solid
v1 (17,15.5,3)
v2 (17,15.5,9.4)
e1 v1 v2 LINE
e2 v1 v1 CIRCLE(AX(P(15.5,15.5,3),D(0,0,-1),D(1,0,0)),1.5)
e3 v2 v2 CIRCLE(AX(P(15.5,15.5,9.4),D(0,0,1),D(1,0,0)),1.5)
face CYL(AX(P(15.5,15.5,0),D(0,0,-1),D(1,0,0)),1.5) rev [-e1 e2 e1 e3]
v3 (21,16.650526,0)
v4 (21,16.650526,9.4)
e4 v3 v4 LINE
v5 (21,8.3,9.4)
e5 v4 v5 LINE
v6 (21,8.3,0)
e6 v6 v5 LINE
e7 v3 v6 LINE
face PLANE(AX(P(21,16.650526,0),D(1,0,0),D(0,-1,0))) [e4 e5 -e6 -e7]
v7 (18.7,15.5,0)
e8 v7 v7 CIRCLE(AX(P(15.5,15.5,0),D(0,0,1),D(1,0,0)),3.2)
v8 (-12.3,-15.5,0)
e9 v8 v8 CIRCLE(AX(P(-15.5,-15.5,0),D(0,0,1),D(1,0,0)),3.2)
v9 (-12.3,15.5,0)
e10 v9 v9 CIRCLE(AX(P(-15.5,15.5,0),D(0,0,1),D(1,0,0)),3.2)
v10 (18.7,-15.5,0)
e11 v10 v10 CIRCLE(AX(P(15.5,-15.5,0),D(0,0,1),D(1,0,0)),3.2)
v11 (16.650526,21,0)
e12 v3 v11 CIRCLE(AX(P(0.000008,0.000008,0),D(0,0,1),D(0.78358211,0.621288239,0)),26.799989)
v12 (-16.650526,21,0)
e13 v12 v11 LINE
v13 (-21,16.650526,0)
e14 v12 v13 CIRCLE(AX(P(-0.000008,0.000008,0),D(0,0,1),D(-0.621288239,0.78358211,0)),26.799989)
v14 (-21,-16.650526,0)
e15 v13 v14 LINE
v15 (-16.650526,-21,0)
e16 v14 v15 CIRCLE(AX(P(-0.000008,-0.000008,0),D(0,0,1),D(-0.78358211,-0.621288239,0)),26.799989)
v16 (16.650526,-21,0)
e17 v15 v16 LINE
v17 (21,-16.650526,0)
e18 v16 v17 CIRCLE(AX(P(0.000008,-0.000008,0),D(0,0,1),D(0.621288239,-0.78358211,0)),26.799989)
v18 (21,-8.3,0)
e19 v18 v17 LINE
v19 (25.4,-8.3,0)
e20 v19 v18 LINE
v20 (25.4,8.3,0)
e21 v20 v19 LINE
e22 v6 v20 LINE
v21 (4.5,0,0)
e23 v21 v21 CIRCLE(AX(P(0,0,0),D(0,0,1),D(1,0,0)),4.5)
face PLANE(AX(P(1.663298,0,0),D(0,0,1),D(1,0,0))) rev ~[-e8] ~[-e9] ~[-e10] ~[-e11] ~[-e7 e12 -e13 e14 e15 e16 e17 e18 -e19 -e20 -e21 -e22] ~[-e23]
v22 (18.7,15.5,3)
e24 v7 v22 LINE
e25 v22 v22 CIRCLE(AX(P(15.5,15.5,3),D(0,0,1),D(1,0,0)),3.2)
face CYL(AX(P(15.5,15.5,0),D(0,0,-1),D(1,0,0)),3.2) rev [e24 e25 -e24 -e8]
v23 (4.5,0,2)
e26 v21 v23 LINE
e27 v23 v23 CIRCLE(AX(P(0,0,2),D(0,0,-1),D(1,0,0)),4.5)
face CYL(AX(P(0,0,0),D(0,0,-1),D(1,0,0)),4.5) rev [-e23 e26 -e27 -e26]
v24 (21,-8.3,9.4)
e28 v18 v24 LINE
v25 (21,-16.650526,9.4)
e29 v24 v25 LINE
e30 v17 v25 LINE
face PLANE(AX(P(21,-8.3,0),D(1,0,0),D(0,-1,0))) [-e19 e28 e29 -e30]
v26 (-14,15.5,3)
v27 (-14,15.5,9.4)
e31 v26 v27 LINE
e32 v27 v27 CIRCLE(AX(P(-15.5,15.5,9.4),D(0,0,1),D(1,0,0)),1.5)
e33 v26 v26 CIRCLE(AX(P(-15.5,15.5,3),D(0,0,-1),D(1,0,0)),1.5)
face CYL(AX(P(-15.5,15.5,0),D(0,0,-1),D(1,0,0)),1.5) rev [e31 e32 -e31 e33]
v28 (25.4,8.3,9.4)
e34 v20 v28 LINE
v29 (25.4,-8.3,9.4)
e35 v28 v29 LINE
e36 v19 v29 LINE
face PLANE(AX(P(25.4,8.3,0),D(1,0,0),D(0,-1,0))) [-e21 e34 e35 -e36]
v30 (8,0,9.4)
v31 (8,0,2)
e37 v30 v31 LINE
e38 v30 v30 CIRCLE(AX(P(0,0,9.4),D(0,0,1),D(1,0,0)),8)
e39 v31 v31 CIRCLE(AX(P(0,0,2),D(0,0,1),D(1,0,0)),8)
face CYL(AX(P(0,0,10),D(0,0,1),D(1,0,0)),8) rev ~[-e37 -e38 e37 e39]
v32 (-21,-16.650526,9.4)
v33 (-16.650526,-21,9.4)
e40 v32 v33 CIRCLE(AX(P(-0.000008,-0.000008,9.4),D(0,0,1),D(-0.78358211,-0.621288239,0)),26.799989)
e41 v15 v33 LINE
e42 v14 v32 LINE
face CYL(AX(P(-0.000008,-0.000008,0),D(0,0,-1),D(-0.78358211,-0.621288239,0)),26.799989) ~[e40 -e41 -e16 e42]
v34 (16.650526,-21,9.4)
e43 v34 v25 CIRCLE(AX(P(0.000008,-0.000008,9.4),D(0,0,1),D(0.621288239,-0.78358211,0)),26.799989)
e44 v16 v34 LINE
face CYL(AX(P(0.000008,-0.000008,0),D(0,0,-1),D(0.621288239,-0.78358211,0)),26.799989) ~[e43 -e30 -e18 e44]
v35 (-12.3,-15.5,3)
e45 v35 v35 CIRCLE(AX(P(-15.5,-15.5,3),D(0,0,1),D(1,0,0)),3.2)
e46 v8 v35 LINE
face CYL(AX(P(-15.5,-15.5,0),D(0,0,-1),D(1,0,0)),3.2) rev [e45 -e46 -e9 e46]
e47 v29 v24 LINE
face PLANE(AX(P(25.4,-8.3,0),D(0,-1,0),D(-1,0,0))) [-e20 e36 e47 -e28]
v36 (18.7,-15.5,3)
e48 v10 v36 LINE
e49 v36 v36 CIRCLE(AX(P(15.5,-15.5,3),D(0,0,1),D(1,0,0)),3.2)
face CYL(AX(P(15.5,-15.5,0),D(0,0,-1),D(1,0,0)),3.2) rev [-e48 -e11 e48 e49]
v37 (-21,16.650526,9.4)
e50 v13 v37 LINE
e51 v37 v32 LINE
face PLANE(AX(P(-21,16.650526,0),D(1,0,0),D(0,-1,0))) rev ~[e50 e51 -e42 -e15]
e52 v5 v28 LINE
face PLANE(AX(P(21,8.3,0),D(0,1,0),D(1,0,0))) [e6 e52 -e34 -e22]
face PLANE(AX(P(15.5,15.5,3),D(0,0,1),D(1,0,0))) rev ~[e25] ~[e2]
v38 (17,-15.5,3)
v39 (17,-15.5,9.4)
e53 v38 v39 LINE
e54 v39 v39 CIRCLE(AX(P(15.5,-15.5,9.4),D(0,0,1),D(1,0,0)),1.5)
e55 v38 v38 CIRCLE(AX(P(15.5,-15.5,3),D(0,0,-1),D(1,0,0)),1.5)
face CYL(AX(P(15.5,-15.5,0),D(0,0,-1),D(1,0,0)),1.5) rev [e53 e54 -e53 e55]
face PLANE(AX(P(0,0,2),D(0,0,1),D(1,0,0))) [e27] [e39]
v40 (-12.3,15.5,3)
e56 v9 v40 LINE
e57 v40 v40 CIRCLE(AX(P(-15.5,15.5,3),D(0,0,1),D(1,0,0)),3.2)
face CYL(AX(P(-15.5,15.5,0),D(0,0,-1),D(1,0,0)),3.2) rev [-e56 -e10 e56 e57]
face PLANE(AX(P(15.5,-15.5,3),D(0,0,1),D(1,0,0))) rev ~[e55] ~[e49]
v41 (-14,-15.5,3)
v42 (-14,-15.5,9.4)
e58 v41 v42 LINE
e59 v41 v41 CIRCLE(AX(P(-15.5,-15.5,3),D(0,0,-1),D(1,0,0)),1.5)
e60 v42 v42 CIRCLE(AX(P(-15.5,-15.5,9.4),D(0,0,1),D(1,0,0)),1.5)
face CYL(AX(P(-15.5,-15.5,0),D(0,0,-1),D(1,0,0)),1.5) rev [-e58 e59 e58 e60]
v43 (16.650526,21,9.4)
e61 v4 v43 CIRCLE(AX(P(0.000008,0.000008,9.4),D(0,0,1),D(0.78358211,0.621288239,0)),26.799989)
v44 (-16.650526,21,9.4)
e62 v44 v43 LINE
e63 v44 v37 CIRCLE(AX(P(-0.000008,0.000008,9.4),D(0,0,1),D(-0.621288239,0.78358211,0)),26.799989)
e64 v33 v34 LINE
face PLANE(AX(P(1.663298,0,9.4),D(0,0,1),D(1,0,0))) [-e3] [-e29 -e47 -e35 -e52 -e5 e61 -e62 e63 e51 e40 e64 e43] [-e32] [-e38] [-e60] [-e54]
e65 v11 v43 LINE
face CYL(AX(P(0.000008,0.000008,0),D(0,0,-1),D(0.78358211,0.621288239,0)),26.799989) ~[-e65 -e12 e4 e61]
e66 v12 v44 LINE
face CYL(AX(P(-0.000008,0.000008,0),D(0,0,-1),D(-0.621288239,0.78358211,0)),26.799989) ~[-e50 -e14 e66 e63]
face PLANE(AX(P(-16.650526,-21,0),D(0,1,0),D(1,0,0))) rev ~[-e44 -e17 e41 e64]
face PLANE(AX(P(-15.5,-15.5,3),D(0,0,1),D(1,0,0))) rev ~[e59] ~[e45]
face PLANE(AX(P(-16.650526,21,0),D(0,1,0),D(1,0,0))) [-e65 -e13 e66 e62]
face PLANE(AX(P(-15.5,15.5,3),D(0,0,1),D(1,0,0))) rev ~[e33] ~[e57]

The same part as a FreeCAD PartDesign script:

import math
import FreeCAD as App
import Part
import Sketcher
from FreeCAD import Vector

doc = App.newDocument("Part")
body = doc.addObject("PartDesign::Body", "Body")

# Sketch on XY plane
sketch1 = body.newObject("Sketcher::SketchObject", "Sketch")
sketch1.AttachmentSupport = (doc.getObject("XY_Plane"), [""])
sketch1.MapMode = "FlatFace"
sketch1.addGeometry(Part.ArcOfCircle(Part.Circle(Vector(-0.000008, 0.000008, 0), Vector(0, 0, 1), 26.799989), math.radians(128.41027), math.radians(141.58973)), False)
sketch1.addGeometry(Part.LineSegment(Vector(-21, 16.650526, 0), Vector(-21, -16.650526, 0)), False)
sketch1.addGeometry(Part.ArcOfCircle(Part.Circle(Vector(-0.000008, -0.000008, 0), Vector(0, 0, 1), 26.799989), math.radians(-141.58973), math.radians(-128.41027)), False)
sketch1.addGeometry(Part.LineSegment(Vector(-16.650526, -21, 0), Vector(16.650526, -21, 0)), False)
sketch1.addGeometry(Part.ArcOfCircle(Part.Circle(Vector(0.000008, -0.000008, 0), Vector(0, 0, 1), 26.799989), math.radians(-51.58973), math.radians(-38.41027)), False)
sketch1.addGeometry(Part.LineSegment(Vector(21, -16.650526, 0), Vector(21, -8.3, 0)), False)
sketch1.addGeometry(Part.LineSegment(Vector(21, -8.3, 0), Vector(25.4, -8.3, 0)), False)
sketch1.addGeometry(Part.LineSegment(Vector(25.4, -8.3, 0), Vector(25.4, 8.3, 0)), False)
sketch1.addGeometry(Part.LineSegment(Vector(25.4, 8.3, 0), Vector(21, 8.3, 0)), False)
sketch1.addGeometry(Part.LineSegment(Vector(21, 8.3, 0), Vector(21, 16.650526, 0)), False)
sketch1.addGeometry(Part.ArcOfCircle(Part.Circle(Vector(0.000008, 0.000008, 0), Vector(0, 0, 1), 26.799989), math.radians(38.41027), math.radians(51.58973)), False)
sketch1.addGeometry(Part.LineSegment(Vector(16.650526, 21, 0), Vector(-16.650526, 21, 0)), False)
sketch1.addGeometry(Part.Circle(Vector(-15.5, -15.5, 0), Vector(0, 0, 1), 1.5), False)
sketch1.addGeometry(Part.Circle(Vector(15.5, -15.5, 0), Vector(0, 0, 1), 1.5), False)
sketch1.addGeometry(Part.Circle(Vector(-15.5, 15.5, 0), Vector(0, 0, 1), 1.5), False)
sketch1.addGeometry(Part.Circle(Vector(0, 0, 0), Vector(0, 0, 1), 4.5), False)
sketch1.addGeometry(Part.Circle(Vector(15.5, 15.5, 0), Vector(0, 0, 1), 1.5), False)
sketch1.addConstraint(Sketcher.Constraint("Coincident", 0, 2, 1, 1))
sketch1.addConstraint(Sketcher.Constraint("Coincident", 1, 2, 2, 1))
sketch1.addConstraint(Sketcher.Constraint("Coincident", 2, 2, 3, 1))
sketch1.addConstraint(Sketcher.Constraint("Coincident", 3, 2, 4, 1))
sketch1.addConstraint(Sketcher.Constraint("Coincident", 4, 2, 5, 1))
sketch1.addConstraint(Sketcher.Constraint("Coincident", 5, 2, 6, 1))
sketch1.addConstraint(Sketcher.Constraint("Coincident", 6, 2, 7, 1))
sketch1.addConstraint(Sketcher.Constraint("Coincident", 7, 2, 8, 1))
sketch1.addConstraint(Sketcher.Constraint("Coincident", 8, 2, 9, 1))
sketch1.addConstraint(Sketcher.Constraint("Coincident", 9, 2, 10, 1))
sketch1.addConstraint(Sketcher.Constraint("Coincident", 10, 2, 11, 1))
sketch1.addConstraint(Sketcher.Constraint("Coincident", 11, 2, 0, 1))
sketch1.addConstraint(Sketcher.Constraint("Vertical", 1))
sketch1.addConstraint(Sketcher.Constraint("Horizontal", 3))
sketch1.addConstraint(Sketcher.Constraint("Vertical", 5))
sketch1.addConstraint(Sketcher.Constraint("Horizontal", 6))
sketch1.addConstraint(Sketcher.Constraint("Vertical", 7))
sketch1.addConstraint(Sketcher.Constraint("Horizontal", 8))
sketch1.addConstraint(Sketcher.Constraint("Vertical", 9))
sketch1.addConstraint(Sketcher.Constraint("Horizontal", 11))
sketch1.addConstraint(Sketcher.Constraint("Coincident", 15, 3, -1, 1))
sketch1.addConstraint(Sketcher.Constraint("Equal", 0, 2))
sketch1.addConstraint(Sketcher.Constraint("Equal", 2, 4))
sketch1.addConstraint(Sketcher.Constraint("Equal", 4, 10))
sketch1.addConstraint(Sketcher.Constraint("Equal", 12, 13))
sketch1.addConstraint(Sketcher.Constraint("Equal", 13, 14))
sketch1.addConstraint(Sketcher.Constraint("Equal", 14, 16))
sketch1.addConstraint(Sketcher.Constraint("Symmetric", 0, 3, 4, 3, -1, 1))
sketch1.addConstraint(Sketcher.Constraint("Symmetric", 2, 3, 10, 3, -1, 1))
sketch1.addConstraint(Sketcher.Constraint("Symmetric", 13, 3, 14, 3, -1, 1))
sketch1.addConstraint(Sketcher.Constraint("Symmetric", 12, 3, 16, 3, -1, 1))
sketch1.addConstraint(Sketcher.Constraint("Symmetric", 2, 3, 4, 3, -2))
sketch1.addConstraint(Sketcher.Constraint("Symmetric", 12, 3, 13, 3, -2))
sketch1.addConstraint(Sketcher.Constraint("Symmetric", 5, 2, 8, 2, -1))
sketch1.addConstraint(Sketcher.Constraint("Horizontal", 1, 2, 4, 2))
sketch1.addConstraint(Sketcher.Constraint("Vertical", 3, 2, 10, 2))
sketch1.addConstraint(Sketcher.Constraint("Equal", 11, 1))
sketch1.addConstraint(Sketcher.Constraint("Diameter", 12, 3.0))
sketch1.addConstraint(Sketcher.Constraint("Diameter", 15, 9.0))
sketch1.addConstraint(Sketcher.Constraint("DistanceX", 6, 1, 6, 2, 4.4))
sketch1.addConstraint(Sketcher.Constraint("DistanceY", 7, 1, 7, 2, 16.6))
sketch1.addConstraint(Sketcher.Constraint("DistanceX", 0, 2, -1, 1, 21.0))
sketch1.addConstraint(Sketcher.Constraint("DistanceY", 2, 2, -1, 1, 21.0))
sketch1.addConstraint(Sketcher.Constraint("DistanceX", 12, 3, 13, 3, 31.0))
sketch1.addConstraint(Sketcher.Constraint("DistanceY", 12, 3, 14, 3, 31.0))
sketch1.addConstraint(Sketcher.Constraint("Radius", 0, 26.799989))
sketch1.addConstraint(Sketcher.Constraint("DistanceX", 3, 1, 3, 2, 33.301052))
pad1 = body.newObject("PartDesign::Pad", "Pad")
pad1.Profile = sketch1
pad1.Length = 9.4

# Sketch on XY plane
sketch2 = body.newObject("Sketcher::SketchObject", "Sketch001")
sketch2.AttachmentSupport = (doc.getObject("XY_Plane"), [""])
sketch2.MapMode = "FlatFace"
sketch2.addGeometry(Part.Circle(Vector(-15.5, 15.5, 0), Vector(0, 0, 1), 3.2), False)
sketch2.addGeometry(Part.Circle(Vector(15.5, 15.5, 0), Vector(0, 0, 1), 3.2), False)
sketch2.addGeometry(Part.Circle(Vector(15.5, -15.5, 0), Vector(0, 0, 1), 3.2), False)
sketch2.addGeometry(Part.Circle(Vector(-15.5, -15.5, 0), Vector(0, 0, 1), 3.2), False)
sketch2.addConstraint(Sketcher.Constraint("Equal", 0, 1))
sketch2.addConstraint(Sketcher.Constraint("Equal", 1, 2))
sketch2.addConstraint(Sketcher.Constraint("Equal", 2, 3))
sketch2.addConstraint(Sketcher.Constraint("Symmetric", 0, 3, 2, 3, -1, 1))
sketch2.addConstraint(Sketcher.Constraint("Symmetric", 1, 3, 3, 3, -1, 1))
sketch2.addConstraint(Sketcher.Constraint("Symmetric", 0, 3, 1, 3, -2))
sketch2.addConstraint(Sketcher.Constraint("Diameter", 0, 6.4))
sketch2.addConstraint(Sketcher.Constraint("DistanceX", 0, 3, 1, 3, 31.0))
sketch2.addConstraint(Sketcher.Constraint("DistanceY", 2, 3, 1, 3, 31.0))
pocket1 = body.newObject("PartDesign::Pocket", "Pocket")
pocket1.Profile = sketch2
pocket1.Length = 3
pocket1.Reversed = True

# Sketch on XY plane
sketch3 = body.newObject("Sketcher::SketchObject", "Sketch002")
sketch3.AttachmentSupport = (doc.getObject("XY_Plane"), [""])
sketch3.MapMode = "FlatFace"
sketch3.AttachmentOffset = App.Placement(Vector(0, 0, 10), App.Rotation())
sketch3.addGeometry(Part.Circle(Vector(0, 0, 0), Vector(0, 0, 1), 8), False)
sketch3.addConstraint(Sketcher.Constraint("Coincident", 0, 3, -1, 1))
sketch3.addConstraint(Sketcher.Constraint("Diameter", 0, 16.0))
pocket2 = body.newObject("PartDesign::Pocket", "Pocket001")
pocket2.Profile = sketch3
pocket2.Length = 8

doc.recompute()
